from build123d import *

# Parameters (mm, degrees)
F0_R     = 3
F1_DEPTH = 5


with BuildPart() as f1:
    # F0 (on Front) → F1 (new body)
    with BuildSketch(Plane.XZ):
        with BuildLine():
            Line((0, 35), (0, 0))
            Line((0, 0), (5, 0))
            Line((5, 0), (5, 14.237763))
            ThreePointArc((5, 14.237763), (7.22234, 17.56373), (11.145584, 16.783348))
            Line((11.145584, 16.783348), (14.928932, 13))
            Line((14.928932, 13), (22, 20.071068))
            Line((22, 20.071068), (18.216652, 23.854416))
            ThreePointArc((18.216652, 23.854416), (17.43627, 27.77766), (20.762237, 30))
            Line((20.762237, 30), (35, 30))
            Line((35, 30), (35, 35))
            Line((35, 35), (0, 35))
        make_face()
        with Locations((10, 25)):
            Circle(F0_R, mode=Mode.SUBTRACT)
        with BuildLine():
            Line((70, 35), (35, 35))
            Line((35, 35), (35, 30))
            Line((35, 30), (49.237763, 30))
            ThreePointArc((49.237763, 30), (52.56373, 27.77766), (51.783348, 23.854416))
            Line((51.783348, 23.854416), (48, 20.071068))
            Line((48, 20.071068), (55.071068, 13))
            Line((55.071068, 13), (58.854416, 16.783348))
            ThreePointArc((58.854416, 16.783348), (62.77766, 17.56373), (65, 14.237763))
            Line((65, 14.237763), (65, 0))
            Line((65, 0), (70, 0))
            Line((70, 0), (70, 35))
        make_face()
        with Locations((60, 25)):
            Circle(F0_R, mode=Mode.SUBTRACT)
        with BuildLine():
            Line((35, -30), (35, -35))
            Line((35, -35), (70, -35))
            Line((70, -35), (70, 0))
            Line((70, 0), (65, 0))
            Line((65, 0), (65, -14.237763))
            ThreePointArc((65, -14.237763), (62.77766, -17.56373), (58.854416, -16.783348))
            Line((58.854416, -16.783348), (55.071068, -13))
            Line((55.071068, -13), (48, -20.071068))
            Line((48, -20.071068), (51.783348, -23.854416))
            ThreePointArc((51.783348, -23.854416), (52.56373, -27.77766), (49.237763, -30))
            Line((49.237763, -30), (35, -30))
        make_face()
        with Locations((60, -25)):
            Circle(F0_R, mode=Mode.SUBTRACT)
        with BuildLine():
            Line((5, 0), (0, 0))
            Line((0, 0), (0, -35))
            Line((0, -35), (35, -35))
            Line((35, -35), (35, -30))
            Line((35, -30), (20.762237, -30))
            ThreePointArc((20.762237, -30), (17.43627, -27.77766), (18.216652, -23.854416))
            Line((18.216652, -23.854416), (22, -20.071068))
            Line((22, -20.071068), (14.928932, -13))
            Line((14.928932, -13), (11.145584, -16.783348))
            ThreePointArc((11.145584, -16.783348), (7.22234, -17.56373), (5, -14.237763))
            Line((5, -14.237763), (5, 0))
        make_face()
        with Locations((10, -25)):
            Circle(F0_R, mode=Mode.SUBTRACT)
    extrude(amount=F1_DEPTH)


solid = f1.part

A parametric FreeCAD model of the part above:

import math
import FreeCAD as App
import Part
import Sketcher
from FreeCAD import Vector

doc = App.newDocument("Part")
body = doc.addObject("PartDesign::Body", "Body")

# Sketch on XZ plane
sketch1 = doc.addObject("Sketcher::SketchObject", "Sketch")
body.addObject(sketch1)
sketch1.AttachmentSupport = (doc.XZ_Plane, [""])
sketch1.MapMode = "FlatFace"
sketch1.addGeometry([
    Part.LineSegment(Vector(0, 35, 0), Vector(0, -35, 0)),  # 0
    Part.LineSegment(Vector(0, -35, 0), Vector(70, -35, 0)),  # 1
    Part.LineSegment(Vector(70, -35, 0), Vector(70, 35, 0)),  # 2
    Part.LineSegment(Vector(70, 35, 0), Vector(0, 35, 0)),  # 3
    Part.Circle(Vector(10, -25, 0), Vector(0, 0, 1), 3),  # 4
    Part.Circle(Vector(60, -25, 0), Vector(0, 0, 1), 3),  # 5
    Part.Circle(Vector(10, 25, 0), Vector(0, 0, 1), 3),  # 6
    Part.ArcOfCircle(Part.Circle(Vector(8.6, 14.2, 0), Vector(0, 0, 1), 3.6), math.radians(45), math.radians(180)),  # 7
    Part.LineSegment(Vector(11.1, 16.8, 0), Vector(14.9, 13, 0)),  # 8
    Part.LineSegment(Vector(14.9, 13, 0), Vector(22, 20.1, 0)),  # 9
    Part.LineSegment(Vector(22, 20.1, 0), Vector(18.2, 23.9, 0)),  # 10
    Part.ArcOfCircle(Part.Circle(Vector(20.8, 26.4, 0), Vector(0, 0, 1), 3.6), math.radians(90), math.radians(225)),  # 11
    Part.LineSegment(Vector(20.8, 30, 0), Vector(49.2, 30, 0)),  # 12
    Part.ArcOfCircle(Part.Circle(Vector(49.2, 26.4, 0), Vector(0, 0, 1), 3.6), math.radians(-45), math.radians(90)),  # 13
    Part.LineSegment(Vector(51.8, 23.9, 0), Vector(48, 20.1, 0)),  # 14
    Part.LineSegment(Vector(48, 20.1, 0), Vector(55.1, 13, 0)),  # 15
    Part.LineSegment(Vector(55.1, 13, 0), Vector(58.9, 16.8, 0)),  # 16
    Part.ArcOfCircle(Part.Circle(Vector(61.4, 14.2, 0), Vector(0, 0, 1), 3.6), math.radians(0), math.radians(135)),  # 17
    Part.LineSegment(Vector(65, 14.2, 0), Vector(65, -14.2, 0)),  # 18
    Part.ArcOfCircle(Part.Circle(Vector(61.4, -14.2, 0), Vector(0, 0, 1), 3.6), math.radians(-135), math.radians(0)),  # 19
    Part.LineSegment(Vector(58.9, -16.8, 0), Vector(55.1, -13, 0)),  # 20
    Part.LineSegment(Vector(55.1, -13, 0), Vector(48, -20.1, 0)),  # 21
    Part.LineSegment(Vector(48, -20.1, 0), Vector(51.8, -23.9, 0)),  # 22
    Part.ArcOfCircle(Part.Circle(Vector(49.2, -26.4, 0), Vector(0, 0, 1), 3.6), math.radians(-90), math.radians(45)),  # 23
    Part.LineSegment(Vector(49.2, -30, 0), Vector(20.8, -30, 0)),  # 24
    Part.ArcOfCircle(Part.Circle(Vector(20.8, -26.4, 0), Vector(0, 0, 1), 3.6), math.radians(135), math.radians(270)),  # 25
    Part.LineSegment(Vector(18.2, -23.9, 0), Vector(22, -20.1, 0)),  # 26
    Part.LineSegment(Vector(22, -20.1, 0), Vector(14.9, -13, 0)),  # 27
    Part.LineSegment(Vector(14.9, -13, 0), Vector(11.1, -16.8, 0)),  # 28
    Part.ArcOfCircle(Part.Circle(Vector(8.6, -14.2, 0), Vector(0, 0, 1), 3.6), math.radians(180), math.radians(315)),  # 29
    Part.LineSegment(Vector(5, -14.2, 0), Vector(5, 14.2, 0)),  # 30
    Part.Circle(Vector(60, 25, 0), Vector(0, 0, 1), 3),  # 31
], False)
sketch1.addConstraint([
    Sketcher.Constraint("Coincident", 0, 2, 1, 1),
    Sketcher.Constraint("Coincident", 1, 2, 2, 1),
    Sketcher.Constraint("Coincident", 2, 2, 3, 1),
    Sketcher.Constraint("Coincident", 3, 2, 0, 1),
    Sketcher.Constraint("Tangent", 7, 1, 8, 1),
    Sketcher.Constraint("Coincident", 8, 2, 9, 1),
    Sketcher.Constraint("Coincident", 9, 2, 10, 1),
    Sketcher.Constraint("Tangent", 10, 2, 11, 2),
    Sketcher.Constraint("Tangent", 11, 1, 12, 1),
    Sketcher.Constraint("Tangent", 12, 2, 13, 2),
    Sketcher.Constraint("Tangent", 13, 1, 14, 1),
    Sketcher.Constraint("Coincident", 14, 2, 15, 1),
    Sketcher.Constraint("Coincident", 15, 2, 16, 1),
    Sketcher.Constraint("Tangent", 16, 2, 17, 2),
    Sketcher.Constraint("Tangent", 17, 1, 18, 1),
    Sketcher.Constraint("Tangent", 18, 2, 19, 2),
    Sketcher.Constraint("Tangent", 19, 1, 20, 1),
    Sketcher.Constraint("Coincident", 20, 2, 21, 1),
    Sketcher.Constraint("Coincident", 21, 2, 22, 1),
    Sketcher.Constraint("Tangent", 22, 2, 23, 2),
    Sketcher.Constraint("Tangent", 23, 1, 24, 1),
    Sketcher.Constraint("Tangent", 24, 2, 25, 2),
    Sketcher.Constraint("Tangent", 25, 1, 26, 1),
    Sketcher.Constraint("Coincident", 26, 2, 27, 1),
    Sketcher.Constraint("Coincident", 27, 2, 28, 1),
    Sketcher.Constraint("Tangent", 28, 2, 29, 2),
    Sketcher.Constraint("Tangent", 29, 1, 30, 1),
    Sketcher.Constraint("Tangent", 30, 2, 7, 2),
    Sketcher.Constraint("Vertical", 0),
    Sketcher.Constraint("Horizontal", 1),
    Sketcher.Constraint("Vertical", 2),
    Sketcher.Constraint("Horizontal", 3),
    Sketcher.Constraint("Horizontal", 12),
    Sketcher.Constraint("Vertical", 18),
    Sketcher.Constraint("Horizontal", 24),
    Sketcher.Constraint("Vertical", 30),
    Sketcher.Constraint("Equal", 4, 5),
    Sketcher.Constraint("Equal", 5, 6),
    Sketcher.Constraint("Equal", 7, 11),
    Sketcher.Constraint("Equal", 11, 13),
    Sketcher.Constraint("Equal", 13, 17),
    Sketcher.Constraint("Equal", 17, 19),
    Sketcher.Constraint("Equal", 19, 23),
    Sketcher.Constraint("Equal", 23, 25),
    Sketcher.Constraint("Equal", 25, 29),
    Sketcher.Constraint("Equal", 6, 31),
    Sketcher.Constraint("Symmetric", 0, 2, 3, 2, -1, 1),
    Sketcher.Constraint("Symmetric", 4, 3, 6, 3, -1),
    Sketcher.Constraint("Symmetric", 13, 3, 23, 3, -1),
    Sketcher.Constraint("Symmetric", 5, 3, 31, 3, -1),
    Sketcher.Constraint("Symmetric", 16, 2, 19, 1, -1),
    Sketcher.Constraint("Symmetric", 14, 2, 21, 2, -1),
    Sketcher.Constraint("Symmetric", 10, 2, 25, 1, -1),
    Sketcher.Constraint("Symmetric", 8, 2, 27, 2, -1),
    Sketcher.Constraint("Perpendicular", 8, 9),
    Sketcher.Constraint("Perpendicular", 9, 10),
    Sketcher.Constraint("Perpendicular", 10, 14),
    Sketcher.Constraint("Perpendicular", 14, 15),
    Sketcher.Constraint("Perpendicular", 15, 16),
    Sketcher.Constraint("Perpendicular", 16, 20),
    Sketcher.Constraint("Perpendicular", 20, 21),
    Sketcher.Constraint("Perpendicular", 26, 27),
    Sketcher.Constraint("Perpendicular", 27, 28),
    Sketcher.Constraint("Horizontal", 4, 3, 5, 3),
    Sketcher.Constraint("Horizontal", 7, 3, 17, 3),
    Sketcher.Constraint("Horizontal", 9, 2, 14, 2),
    Sketcher.Constraint("Horizontal", 8, 2, 15, 2),
    Sketcher.Constraint("Equal", 3, 0),
    Sketcher.Constraint("Equal", 24, 18),
    Sketcher.Constraint("Equal", 8, 10),
    Sketcher.Constraint("Diameter", 4, 6.0),
    Sketcher.Constraint("Radius", 7, 3.6),
    Sketcher.Constraint("DistanceX", 1, 1, 1, 2, 70.0),
    Sketcher.Constraint("Distance", 9, 10.0),
    Sketcher.Constraint("DistanceX", -1, 1, 4, 3, 10.0),
    Sketcher.Constraint("DistanceY", 4, 3, -1, 1, 25.0),
    Sketcher.Constraint("DistanceX", -1, 1, 5, 3, 60.0),
    Sketcher.Constraint("DistanceY", -1, 1, 8, 2, 13.0),
    Sketcher.Constraint("DistanceX", -1, 1, 9, 2, 22.0),
    Sketcher.Constraint("DistanceY", -1, 1, 11, 1, 30.0),
])
pad1 = doc.addObject("PartDesign::Pad", "Pad")
body.addObject(pad1)
pad1.Profile = sketch1
pad1.Length = 5

doc.recompute()
